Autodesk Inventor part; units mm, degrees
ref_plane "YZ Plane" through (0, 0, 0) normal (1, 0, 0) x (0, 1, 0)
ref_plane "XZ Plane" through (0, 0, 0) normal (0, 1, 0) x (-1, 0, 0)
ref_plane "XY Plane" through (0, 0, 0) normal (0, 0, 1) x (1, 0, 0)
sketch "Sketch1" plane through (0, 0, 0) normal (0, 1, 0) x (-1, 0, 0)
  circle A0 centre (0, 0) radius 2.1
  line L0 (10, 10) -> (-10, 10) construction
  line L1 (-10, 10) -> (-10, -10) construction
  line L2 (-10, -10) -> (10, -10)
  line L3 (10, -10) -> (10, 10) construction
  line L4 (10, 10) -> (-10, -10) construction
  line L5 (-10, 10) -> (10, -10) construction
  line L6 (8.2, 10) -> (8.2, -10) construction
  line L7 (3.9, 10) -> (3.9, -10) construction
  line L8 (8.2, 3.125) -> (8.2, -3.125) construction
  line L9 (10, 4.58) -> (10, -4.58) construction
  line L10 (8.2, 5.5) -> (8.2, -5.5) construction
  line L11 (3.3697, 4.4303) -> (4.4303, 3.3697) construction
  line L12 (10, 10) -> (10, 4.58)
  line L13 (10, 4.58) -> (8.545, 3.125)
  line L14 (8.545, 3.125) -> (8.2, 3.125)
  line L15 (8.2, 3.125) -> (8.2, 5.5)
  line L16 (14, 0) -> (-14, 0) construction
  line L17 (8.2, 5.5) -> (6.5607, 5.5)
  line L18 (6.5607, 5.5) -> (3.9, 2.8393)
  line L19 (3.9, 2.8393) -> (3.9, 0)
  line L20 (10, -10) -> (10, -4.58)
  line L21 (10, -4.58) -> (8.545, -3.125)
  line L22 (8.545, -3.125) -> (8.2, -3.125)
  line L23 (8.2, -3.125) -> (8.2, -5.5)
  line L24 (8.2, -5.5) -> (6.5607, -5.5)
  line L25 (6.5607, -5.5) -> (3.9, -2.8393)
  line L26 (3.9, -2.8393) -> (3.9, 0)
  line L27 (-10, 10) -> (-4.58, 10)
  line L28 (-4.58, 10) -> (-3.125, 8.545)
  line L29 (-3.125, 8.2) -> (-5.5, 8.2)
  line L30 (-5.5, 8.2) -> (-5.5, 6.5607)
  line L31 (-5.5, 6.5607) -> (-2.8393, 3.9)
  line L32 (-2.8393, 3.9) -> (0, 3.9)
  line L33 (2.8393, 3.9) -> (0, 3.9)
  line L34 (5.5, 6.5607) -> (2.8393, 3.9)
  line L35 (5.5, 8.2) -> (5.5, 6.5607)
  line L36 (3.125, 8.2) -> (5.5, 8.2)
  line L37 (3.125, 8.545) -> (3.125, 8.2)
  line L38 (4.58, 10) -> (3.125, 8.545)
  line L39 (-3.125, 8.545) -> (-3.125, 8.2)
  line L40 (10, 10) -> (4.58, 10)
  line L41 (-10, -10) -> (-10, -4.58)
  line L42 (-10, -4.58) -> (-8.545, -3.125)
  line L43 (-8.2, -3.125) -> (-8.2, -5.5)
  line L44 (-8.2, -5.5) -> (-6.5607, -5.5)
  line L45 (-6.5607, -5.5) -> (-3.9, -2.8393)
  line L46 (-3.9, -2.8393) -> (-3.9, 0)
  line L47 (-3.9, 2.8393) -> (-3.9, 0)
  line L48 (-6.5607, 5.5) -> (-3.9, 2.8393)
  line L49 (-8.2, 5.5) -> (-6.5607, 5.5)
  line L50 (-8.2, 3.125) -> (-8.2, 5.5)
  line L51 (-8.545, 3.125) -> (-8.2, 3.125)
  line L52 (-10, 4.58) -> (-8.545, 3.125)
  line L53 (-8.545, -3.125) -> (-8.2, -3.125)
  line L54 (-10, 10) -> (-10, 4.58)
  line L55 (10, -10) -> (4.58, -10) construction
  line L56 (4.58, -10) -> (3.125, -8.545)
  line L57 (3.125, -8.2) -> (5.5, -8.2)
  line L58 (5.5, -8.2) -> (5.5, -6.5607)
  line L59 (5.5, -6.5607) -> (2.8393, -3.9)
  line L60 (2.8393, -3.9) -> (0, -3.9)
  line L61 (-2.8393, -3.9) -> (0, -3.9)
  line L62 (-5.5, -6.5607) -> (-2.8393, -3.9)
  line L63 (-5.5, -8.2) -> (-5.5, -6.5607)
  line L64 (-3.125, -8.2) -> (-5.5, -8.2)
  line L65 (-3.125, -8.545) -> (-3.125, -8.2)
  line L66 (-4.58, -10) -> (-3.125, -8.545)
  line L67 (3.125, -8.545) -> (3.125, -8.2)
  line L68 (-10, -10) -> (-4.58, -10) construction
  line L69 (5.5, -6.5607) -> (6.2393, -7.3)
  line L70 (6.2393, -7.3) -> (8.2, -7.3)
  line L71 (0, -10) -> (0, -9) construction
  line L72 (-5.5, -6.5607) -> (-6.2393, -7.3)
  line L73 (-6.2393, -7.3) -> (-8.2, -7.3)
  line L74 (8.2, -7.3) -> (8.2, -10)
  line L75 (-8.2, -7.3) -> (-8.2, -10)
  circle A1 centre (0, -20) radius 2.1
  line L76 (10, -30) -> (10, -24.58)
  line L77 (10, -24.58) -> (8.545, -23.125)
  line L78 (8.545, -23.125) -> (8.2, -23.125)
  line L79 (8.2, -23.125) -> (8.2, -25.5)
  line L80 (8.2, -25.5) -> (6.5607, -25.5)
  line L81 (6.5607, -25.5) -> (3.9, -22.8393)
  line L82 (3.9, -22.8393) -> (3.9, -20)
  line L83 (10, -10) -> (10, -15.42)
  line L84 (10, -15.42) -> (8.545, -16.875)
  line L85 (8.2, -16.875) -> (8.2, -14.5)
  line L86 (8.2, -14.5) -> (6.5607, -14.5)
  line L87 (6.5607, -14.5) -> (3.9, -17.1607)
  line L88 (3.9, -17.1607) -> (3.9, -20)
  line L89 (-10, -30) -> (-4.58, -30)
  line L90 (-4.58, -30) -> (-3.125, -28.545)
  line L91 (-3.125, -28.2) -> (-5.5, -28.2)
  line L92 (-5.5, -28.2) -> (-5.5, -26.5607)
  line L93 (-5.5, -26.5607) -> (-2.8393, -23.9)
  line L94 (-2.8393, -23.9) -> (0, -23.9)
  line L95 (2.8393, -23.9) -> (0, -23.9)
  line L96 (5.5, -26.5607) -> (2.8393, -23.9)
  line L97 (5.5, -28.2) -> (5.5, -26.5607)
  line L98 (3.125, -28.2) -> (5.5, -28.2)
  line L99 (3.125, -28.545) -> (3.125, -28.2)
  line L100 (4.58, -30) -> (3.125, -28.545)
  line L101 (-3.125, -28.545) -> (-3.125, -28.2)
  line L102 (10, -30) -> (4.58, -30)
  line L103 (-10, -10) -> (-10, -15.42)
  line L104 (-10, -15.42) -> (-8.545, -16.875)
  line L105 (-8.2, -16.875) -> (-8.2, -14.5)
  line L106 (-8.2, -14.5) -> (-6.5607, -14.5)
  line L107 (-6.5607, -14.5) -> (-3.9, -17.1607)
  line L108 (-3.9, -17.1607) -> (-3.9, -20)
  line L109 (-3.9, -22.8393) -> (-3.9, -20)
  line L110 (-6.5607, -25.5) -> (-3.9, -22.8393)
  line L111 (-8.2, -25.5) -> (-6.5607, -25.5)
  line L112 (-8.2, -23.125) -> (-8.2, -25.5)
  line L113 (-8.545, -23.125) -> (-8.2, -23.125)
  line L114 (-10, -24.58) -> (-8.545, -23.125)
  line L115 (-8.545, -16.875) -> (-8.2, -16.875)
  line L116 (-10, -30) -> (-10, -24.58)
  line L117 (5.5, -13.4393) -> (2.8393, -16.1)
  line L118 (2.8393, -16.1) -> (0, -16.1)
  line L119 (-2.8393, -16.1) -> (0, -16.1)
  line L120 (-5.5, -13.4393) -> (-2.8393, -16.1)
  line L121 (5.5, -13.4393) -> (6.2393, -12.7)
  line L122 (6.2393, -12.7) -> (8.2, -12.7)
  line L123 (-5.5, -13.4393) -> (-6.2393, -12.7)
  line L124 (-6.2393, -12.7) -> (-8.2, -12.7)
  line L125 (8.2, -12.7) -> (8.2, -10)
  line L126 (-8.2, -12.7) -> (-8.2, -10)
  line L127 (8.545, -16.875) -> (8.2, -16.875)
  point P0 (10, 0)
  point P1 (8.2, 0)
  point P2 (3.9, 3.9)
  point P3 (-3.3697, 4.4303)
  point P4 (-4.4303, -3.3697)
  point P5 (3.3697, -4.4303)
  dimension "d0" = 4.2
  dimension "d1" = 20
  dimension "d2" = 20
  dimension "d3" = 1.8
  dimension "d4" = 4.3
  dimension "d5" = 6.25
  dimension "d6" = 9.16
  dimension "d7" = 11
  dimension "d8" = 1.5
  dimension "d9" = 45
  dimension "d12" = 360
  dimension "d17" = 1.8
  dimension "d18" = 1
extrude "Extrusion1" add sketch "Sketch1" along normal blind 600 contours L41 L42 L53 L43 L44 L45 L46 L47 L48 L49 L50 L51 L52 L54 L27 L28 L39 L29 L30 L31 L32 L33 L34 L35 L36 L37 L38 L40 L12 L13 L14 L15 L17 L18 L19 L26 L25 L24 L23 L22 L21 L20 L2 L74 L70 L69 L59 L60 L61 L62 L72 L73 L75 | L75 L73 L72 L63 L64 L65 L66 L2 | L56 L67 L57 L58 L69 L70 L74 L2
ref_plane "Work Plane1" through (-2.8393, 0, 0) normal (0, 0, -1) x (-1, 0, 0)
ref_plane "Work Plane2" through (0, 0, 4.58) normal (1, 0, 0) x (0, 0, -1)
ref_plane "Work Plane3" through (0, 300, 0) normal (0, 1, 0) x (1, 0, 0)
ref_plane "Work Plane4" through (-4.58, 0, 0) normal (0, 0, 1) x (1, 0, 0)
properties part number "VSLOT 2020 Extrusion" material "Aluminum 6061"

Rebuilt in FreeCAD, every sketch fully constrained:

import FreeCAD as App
import Part
import Sketcher
from FreeCAD import Vector


def add_polygon(sketch, points):
    """Adds a closed chain of lines whose ends are joined by coincident constraints."""
    first, n = sketch.GeometryCount, len(points)
    for a, b in zip(points, points[1:] + points[:1]):
        sketch.addGeometry(Part.LineSegment(App.Vector(*a, 0), App.Vector(*b, 0)), False)
    for i in range(n):
        sketch.addConstraint(Sketcher.Constraint("Coincident", first + i, 2, first + (i + 1) % n, 1))

doc = App.newDocument("Part")
params = doc.addObject("Spreadsheet::Sheet", "Params")
for row, (alias, value) in enumerate([
    ("sketch1_diameter", "4.2 mm"),
    ("sketch1_width", "5.42 mm"),
    ("pad1_length", "600 mm"),
], start=1):
    params.set(f"A{row}", alias)
    params.set(f"B{row}", "=" + value)
    params.setAlias(f"B{row}", alias)

body = doc.addObject("PartDesign::Body", "Body")

# Sketch on XZ plane
sketch1 = body.newObject("Sketcher::SketchObject", "Sketch")
sketch1.AttachmentSupport = (doc.getObject("XZ_Plane"), [""])
sketch1.MapMode = "FlatFace"
add_polygon(sketch1, [(10, -4.58), (10, -10), (4.58, -10), (3.125, -8.545), (3.125, -8.2), (5.5, -8.2), (5.5, -6.5607), (2.8393, -3.9), (-2.8393, -3.9), (-5.5, -6.5607), (-5.5, -8.2), (-3.125, -8.2), (-3.125, -8.545), (-4.58, -10), (-10, -10), (-10, -4.58), (-8.545, -3.125), (-8.2, -3.125), (-8.2, -5.5), (-6.5607, -5.5), (-3.9, -2.8393), (-3.9, 2.8393), (-6.5607, 5.5), (-8.2, 5.5), (-8.2, 3.125), (-8.545, 3.125), (-10, 4.58), (-10, 10), (-4.58, 10), (-3.125, 8.545), (-3.125, 8.2), (-5.5, 8.2), (-5.5, 6.5607), (-2.8393, 3.9), (2.8393, 3.9), (5.5, 6.5607), (5.5, 8.2), (3.125, 8.2), (3.125, 8.545), (4.58, 10), (10, 10), (10, 4.58), (8.545, 3.125), (8.2, 3.125), (8.2, 5.5), (6.5607, 5.5), (3.9, 2.8393), (3.9, -2.8393), (6.5607, -5.5), (8.2, -5.5), (8.2, -3.125), (8.545, -3.125)])  # lines 0-51
sketch1.addGeometry(Part.Circle(Vector(0, 0, 0), Vector(0, 0, 1), 2.1), False)  # 52
sketch1.addConstraint([
    Sketcher.Constraint("Vertical", 0),
    Sketcher.Constraint("Horizontal", 1),
    Sketcher.Constraint("Vertical", 3),
    Sketcher.Constraint("Horizontal", 4),
    Sketcher.Constraint("Vertical", 5),
    Sketcher.Constraint("Horizontal", 7),
    Sketcher.Constraint("Vertical", 9),
    Sketcher.Constraint("Horizontal", 10),
    Sketcher.Constraint("Vertical", 11),
    Sketcher.Constraint("Horizontal", 13),
    Sketcher.Constraint("Vertical", 14),
    Sketcher.Constraint("Horizontal", 16),
    Sketcher.Constraint("Vertical", 17),
    Sketcher.Constraint("Horizontal", 18),
    Sketcher.Constraint("Vertical", 20),
    Sketcher.Constraint("Horizontal", 22),
    Sketcher.Constraint("Vertical", 23),
    Sketcher.Constraint("Horizontal", 24),
    Sketcher.Constraint("Vertical", 26),
    Sketcher.Constraint("Horizontal", 27),
    Sketcher.Constraint("Vertical", 29),
    Sketcher.Constraint("Horizontal", 30),
    Sketcher.Constraint("Vertical", 31),
    Sketcher.Constraint("Horizontal", 33),
    Sketcher.Constraint("Vertical", 35),
    Sketcher.Constraint("Horizontal", 36),
    Sketcher.Constraint("Vertical", 37),
    Sketcher.Constraint("Horizontal", 39),
    Sketcher.Constraint("Vertical", 40),
    Sketcher.Constraint("Horizontal", 42),
    Sketcher.Constraint("Vertical", 43),
    Sketcher.Constraint("Horizontal", 44),
    Sketcher.Constraint("Vertical", 46),
    Sketcher.Constraint("Horizontal", 48),
    Sketcher.Constraint("Vertical", 49),
    Sketcher.Constraint("Horizontal", 50),
    Sketcher.Constraint("Coincident", 52, 3, -1, 1),
    Sketcher.Constraint("Symmetric", 0, 2, 26, 2, -1, 1),
    Sketcher.Constraint("Symmetric", 2, 2, 28, 2, -1, 1),
    Sketcher.Constraint("Symmetric", 4, 2, 30, 2, -1, 1),
    Sketcher.Constraint("Symmetric", 6, 2, 32, 2, -1, 1),
    Sketcher.Constraint("Symmetric", 8, 2, 34, 2, -1, 1),
    Sketcher.Constraint("Symmetric", 10, 2, 36, 2, -1, 1),
    Sketcher.Constraint("Symmetric", 12, 2, 38, 2, -1, 1),
    Sketcher.Constraint("Symmetric", 14, 2, 40, 2, -1, 1),
    Sketcher.Constraint("Symmetric", 15, 2, 41, 2, -1, 1),
    Sketcher.Constraint("Symmetric", 17, 2, 43, 2, -1, 1),
    Sketcher.Constraint("Symmetric", 19, 2, 45, 2, -1, 1),
    Sketcher.Constraint("Symmetric", 21, 2, 47, 2, -1, 1),
    Sketcher.Constraint("Symmetric", 23, 2, 49, 2, -1, 1),
    Sketcher.Constraint("Symmetric", 5, 2, 8, 2, -2),
    Sketcher.Constraint("Symmetric", 3, 2, 10, 2, -2),
    Sketcher.Constraint("Symmetric", 1, 2, 12, 2, -2),
    Sketcher.Constraint("Symmetric", 25, 2, 40, 2, -2),
    Sketcher.Constraint("Symmetric", 24, 2, 41, 2, -2),
    Sketcher.Constraint("Symmetric", 22, 2, 43, 2, -2),
    Sketcher.Constraint("Parallel", 2, 6),
    Sketcher.Constraint("Perpendicular", 6, 8),
    Sketcher.Constraint("Parallel", 8, 12),
    Sketcher.Constraint("Parallel", 12, 15),
    Sketcher.Constraint("Parallel", 15, 19),
    Sketcher.Constraint("Perpendicular", 19, 21),
    Sketcher.Constraint("Parallel", 21, 25),
    Sketcher.Constraint("Parallel", 25, 28),
    Sketcher.Constraint("Parallel", 28, 32),
    Sketcher.Constraint("Perpendicular", 32, 34),
    Sketcher.Constraint("Parallel", 34, 38),
    Sketcher.Constraint("Parallel", 41, 45),
    Sketcher.Constraint("Perpendicular", 45, 47),
    Sketcher.Constraint("Parallel", 47, 51),
    Sketcher.Constraint("Horizontal", 20, 2, 45, 2),
    Sketcher.Constraint("Horizontal", 14, 2, 51, 2),
    Sketcher.Constraint("Equal", 39, 0),
    Sketcher.Constraint("Equal", 50, 3),
    Sketcher.Constraint("Equal", 48, 5),
    Sketcher.Constraint("Equal", 36, 17),
    Sketcher.Constraint("Equal", 33, 20),
    Sketcher.Constraint("Equal", 12, 15),
    Sketcher.Constraint("Equal", 8, 19),
    Sketcher.Constraint("Diameter", 52, 4.2),
    Sketcher.Constraint("DistanceY", 1, 2, 3, 2, 1.8),
    Sketcher.Constraint("DistanceY", 3, 2, 6, 2, 4.3),
    Sketcher.Constraint("DistanceX", 10, 2, 3, 2, 6.25),
    Sketcher.Constraint("DistanceX", -1, 1, 0, 2, 10.0),
    Sketcher.Constraint("DistanceX", 1, 2, 1, 1, 5.42),
    Sketcher.Constraint("DistanceX", -1, 1, 4, 2, 5.5),
    Sketcher.Constraint("DistanceX", 7, 2, 7, 1, 5.6786),
])
sketch1.setExpression("Constraints[131]", "Params.sketch1_diameter")
sketch1.setExpression("Constraints[136]", "Params.sketch1_width")
pad1 = body.newObject("PartDesign::Pad", "Pad")
pad1.Profile = sketch1
pad1.setExpression("Length", "Params.pad1_length")
pad1.Reversed = True

doc.recompute()
